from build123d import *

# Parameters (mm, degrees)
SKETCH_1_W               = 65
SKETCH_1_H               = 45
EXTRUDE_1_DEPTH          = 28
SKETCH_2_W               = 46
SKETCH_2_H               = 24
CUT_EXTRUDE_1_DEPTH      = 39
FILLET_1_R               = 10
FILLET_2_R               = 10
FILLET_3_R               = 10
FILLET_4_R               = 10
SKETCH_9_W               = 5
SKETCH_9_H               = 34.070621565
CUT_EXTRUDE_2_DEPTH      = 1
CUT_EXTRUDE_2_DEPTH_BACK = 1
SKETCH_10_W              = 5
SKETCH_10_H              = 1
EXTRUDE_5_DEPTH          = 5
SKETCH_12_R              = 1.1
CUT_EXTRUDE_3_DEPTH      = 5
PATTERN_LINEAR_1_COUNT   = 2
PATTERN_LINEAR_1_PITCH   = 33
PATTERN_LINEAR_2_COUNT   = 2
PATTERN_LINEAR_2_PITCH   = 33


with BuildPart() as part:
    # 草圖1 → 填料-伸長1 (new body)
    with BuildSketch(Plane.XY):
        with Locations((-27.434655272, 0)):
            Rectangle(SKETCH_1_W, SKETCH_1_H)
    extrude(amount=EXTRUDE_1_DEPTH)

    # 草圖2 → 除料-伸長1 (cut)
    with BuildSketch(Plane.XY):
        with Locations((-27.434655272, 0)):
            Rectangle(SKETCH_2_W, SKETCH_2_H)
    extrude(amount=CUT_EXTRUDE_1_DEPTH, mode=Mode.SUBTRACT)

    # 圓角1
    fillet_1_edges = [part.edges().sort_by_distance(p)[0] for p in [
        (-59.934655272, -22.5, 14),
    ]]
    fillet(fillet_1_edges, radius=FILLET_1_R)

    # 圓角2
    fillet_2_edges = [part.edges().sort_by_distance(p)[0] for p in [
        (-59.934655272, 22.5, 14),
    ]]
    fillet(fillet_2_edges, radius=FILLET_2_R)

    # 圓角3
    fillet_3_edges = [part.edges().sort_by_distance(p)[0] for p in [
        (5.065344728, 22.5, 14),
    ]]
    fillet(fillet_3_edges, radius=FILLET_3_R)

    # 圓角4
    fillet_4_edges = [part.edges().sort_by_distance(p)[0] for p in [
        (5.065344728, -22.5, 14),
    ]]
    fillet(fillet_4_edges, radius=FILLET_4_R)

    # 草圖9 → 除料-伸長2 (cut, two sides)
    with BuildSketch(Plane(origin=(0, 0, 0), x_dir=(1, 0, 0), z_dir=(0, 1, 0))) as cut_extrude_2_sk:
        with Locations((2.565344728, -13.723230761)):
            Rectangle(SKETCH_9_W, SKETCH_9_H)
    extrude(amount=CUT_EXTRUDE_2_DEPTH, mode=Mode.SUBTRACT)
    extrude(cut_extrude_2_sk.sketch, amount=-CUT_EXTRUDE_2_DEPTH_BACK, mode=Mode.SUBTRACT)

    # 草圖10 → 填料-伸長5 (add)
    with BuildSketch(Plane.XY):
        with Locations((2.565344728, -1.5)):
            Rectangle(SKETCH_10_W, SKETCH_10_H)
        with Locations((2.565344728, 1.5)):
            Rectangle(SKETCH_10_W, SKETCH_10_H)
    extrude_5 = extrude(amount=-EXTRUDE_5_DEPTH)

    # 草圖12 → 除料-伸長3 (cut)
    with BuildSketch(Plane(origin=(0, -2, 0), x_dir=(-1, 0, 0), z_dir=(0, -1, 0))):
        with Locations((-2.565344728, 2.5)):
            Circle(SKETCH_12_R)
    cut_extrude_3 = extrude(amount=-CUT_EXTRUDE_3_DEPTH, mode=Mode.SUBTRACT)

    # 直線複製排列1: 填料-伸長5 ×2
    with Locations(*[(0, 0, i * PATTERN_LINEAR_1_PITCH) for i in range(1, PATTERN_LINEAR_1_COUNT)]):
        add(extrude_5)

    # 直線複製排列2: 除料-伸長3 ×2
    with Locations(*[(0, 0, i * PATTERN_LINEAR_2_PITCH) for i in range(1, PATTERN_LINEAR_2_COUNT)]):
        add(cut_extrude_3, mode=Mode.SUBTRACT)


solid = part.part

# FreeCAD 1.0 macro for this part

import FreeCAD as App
import Part
import Sketcher
from FreeCAD import Vector
Q = App.Units.Quantity


def edges_at(feature, points):
    """Names of the edges that pass closest to the given points."""
    edges = feature.Shape.Edges
    near = lambda p: min(range(len(edges)), key=lambda i: edges[i].distToShape(Part.Vertex(*p))[0])
    return sorted({f"Edge{near(p) + 1}" for p in points})

doc = App.newDocument("Part")
body = doc.addObject("PartDesign::Body", "Body")

# Sketch on XY plane
sketch1 = doc.addObject("Sketcher::SketchObject", "Sketch")
body.addObject(sketch1)
sketch1.AttachmentSupport = (doc.XY_Plane, [""])
sketch1.MapMode = "FlatFace"
sketch1.addGeometry(Part.LineSegment(Vector(-59.934655, 22.5, 0), Vector(-59.934655, -22.5, 0)), False)
sketch1.addGeometry(Part.LineSegment(Vector(-59.934655, -22.5, 0), Vector(5.065345, -22.5, 0)), False)
sketch1.addGeometry(Part.LineSegment(Vector(5.065345, -22.5, 0), Vector(5.065345, 22.5, 0)), False)
sketch1.addGeometry(Part.LineSegment(Vector(5.065345, 22.5, 0), Vector(-59.934655, 22.5, 0)), False)
sketch1.addConstraint(Sketcher.Constraint("Coincident", 0, 2, 1, 1))
sketch1.addConstraint(Sketcher.Constraint("Coincident", 1, 2, 2, 1))
sketch1.addConstraint(Sketcher.Constraint("Coincident", 2, 2, 3, 1))
sketch1.addConstraint(Sketcher.Constraint("Coincident", 3, 2, 0, 1))
sketch1.addConstraint(Sketcher.Constraint("Vertical", 0))
sketch1.addConstraint(Sketcher.Constraint("Horizontal", 1))
sketch1.addConstraint(Sketcher.Constraint("Vertical", 2))
sketch1.addConstraint(Sketcher.Constraint("Horizontal", 3))
sketch1.addConstraint(Sketcher.Constraint("DistanceX", 1, 1, 1, 2, Q("65 mm")))
sketch1.addConstraint(Sketcher.Constraint("DistanceY", 0, 2, 0, 1, Q("45 mm")))
sketch1.addConstraint(Sketcher.Constraint("DistanceY", 0, 2, -1, 1, Q("22.5 mm")))
sketch1.addConstraint(Sketcher.Constraint("DistanceX", 0, 2, -1, 1, Q("59.934655 mm")))
pad1 = doc.addObject("PartDesign::Pad", "Pad")
body.addObject(pad1)
pad1.Profile = sketch1
pad1.Length = 28

# Sketch on XY plane
sketch2 = doc.addObject("Sketcher::SketchObject", "Sketch001")
body.addObject(sketch2)
sketch2.AttachmentSupport = (doc.XY_Plane, [""])
sketch2.MapMode = "FlatFace"
sketch2.addGeometry(Part.LineSegment(Vector(-50.434655, 12, 0), Vector(-50.434655, -12, 0)), False)
sketch2.addGeometry(Part.LineSegment(Vector(-50.434655, -12, 0), Vector(-4.434655, -12, 0)), False)
sketch2.addGeometry(Part.LineSegment(Vector(-4.434655, -12, 0), Vector(-4.434655, 12, 0)), False)
sketch2.addGeometry(Part.LineSegment(Vector(-4.434655, 12, 0), Vector(-50.434655, 12, 0)), False)
sketch2.addConstraint(Sketcher.Constraint("Coincident", 0, 2, 1, 1))
sketch2.addConstraint(Sketcher.Constraint("Coincident", 1, 2, 2, 1))
sketch2.addConstraint(Sketcher.Constraint("Coincident", 2, 2, 3, 1))
sketch2.addConstraint(Sketcher.Constraint("Coincident", 3, 2, 0, 1))
sketch2.addConstraint(Sketcher.Constraint("Vertical", 0))
sketch2.addConstraint(Sketcher.Constraint("Horizontal", 1))
sketch2.addConstraint(Sketcher.Constraint("Vertical", 2))
sketch2.addConstraint(Sketcher.Constraint("Horizontal", 3))
sketch2.addConstraint(Sketcher.Constraint("DistanceX", 1, 1, 1, 2, Q("46 mm")))
sketch2.addConstraint(Sketcher.Constraint("DistanceY", 0, 2, 0, 1, Q("24 mm")))
sketch2.addConstraint(Sketcher.Constraint("DistanceY", 0, 2, -1, 1, Q("12 mm")))
sketch2.addConstraint(Sketcher.Constraint("DistanceX", 0, 2, -1, 1, Q("50.434655 mm")))
pocket1 = doc.addObject("PartDesign::Pocket", "Pocket")
body.addObject(pocket1)
pocket1.Profile = sketch2
pocket1.Length = 39
pocket1.Reversed = True
doc.recompute()

fillet = doc.addObject("PartDesign::Fillet", "Fillet")
body.addObject(fillet)
fillet.Base = (pocket1, edges_at(pocket1, [(-59.935, -22.5, 14)]))
fillet.Radius = 10
doc.recompute()

fillet2 = doc.addObject("PartDesign::Fillet", "Fillet001")
body.addObject(fillet2)
fillet2.Base = (fillet, edges_at(fillet, [(-59.935, 22.5, 14)]))
fillet2.Radius = 10
doc.recompute()

fillet3 = doc.addObject("PartDesign::Fillet", "Fillet002")
body.addObject(fillet3)
fillet3.Base = (fillet2, edges_at(fillet2, [(5.065, 22.5, 14)]))
fillet3.Radius = 10
doc.recompute()

fillet4 = doc.addObject("PartDesign::Fillet", "Fillet003")
body.addObject(fillet4)
fillet4.Base = (fillet3, edges_at(fillet3, [(5.065, -22.5, 14)]))
fillet4.Radius = 10

# Sketch on XZ plane
sketch3 = doc.addObject("Sketcher::SketchObject", "Sketch002")
body.addObject(sketch3)
sketch3.AttachmentSupport = (doc.XZ_Plane, [""])
sketch3.MapMode = "FlatFace"
sketch3.addGeometry(Part.LineSegment(Vector(0.065345, -3.31208, 0), Vector(0.065345, 30.758542, 0)), False)
sketch3.addGeometry(Part.LineSegment(Vector(0.065345, 30.758542, 0), Vector(5.065345, 30.758542, 0)), False)
sketch3.addGeometry(Part.LineSegment(Vector(5.065345, 30.758542, 0), Vector(5.065345, -3.31208, 0)), False)
sketch3.addGeometry(Part.LineSegment(Vector(5.065345, -3.31208, 0), Vector(0.065345, -3.31208, 0)), False)
sketch3.addConstraint(Sketcher.Constraint("Coincident", 0, 2, 1, 1))
sketch3.addConstraint(Sketcher.Constraint("Coincident", 1, 2, 2, 1))
sketch3.addConstraint(Sketcher.Constraint("Coincident", 2, 2, 3, 1))
sketch3.addConstraint(Sketcher.Constraint("Coincident", 3, 2, 0, 1))
sketch3.addConstraint(Sketcher.Constraint("Vertical", 0))
sketch3.addConstraint(Sketcher.Constraint("Horizontal", 1))
sketch3.addConstraint(Sketcher.Constraint("Vertical", 2))
sketch3.addConstraint(Sketcher.Constraint("Horizontal", 3))
sketch3.addConstraint(Sketcher.Constraint("DistanceX", 1, 1, 1, 2, Q("5 mm")))
sketch3.addConstraint(Sketcher.Constraint("DistanceY", 0, 1, 0, 2, Q("34.070622 mm")))
sketch3.addConstraint(Sketcher.Constraint("DistanceY", -1, 1, 0, 2, Q("30.758542 mm")))
sketch3.addConstraint(Sketcher.Constraint("DistanceX", -1, 1, 0, 2, Q("0.065345 mm")))
pocket2 = doc.addObject("PartDesign::Pocket", "Pocket001")
body.addObject(pocket2)
pocket2.Profile = sketch3
pocket2.Type = "TwoLengths"
pocket2.Length = 1
pocket2.Length2 = 1

# Sketch on XY plane
sketch4 = doc.addObject("Sketcher::SketchObject", "Sketch003")
body.addObject(sketch4)
sketch4.AttachmentSupport = (doc.XY_Plane, [""])
sketch4.MapMode = "FlatFace"
sketch4.addGeometry(Part.LineSegment(Vector(0.065345, -1, 0), Vector(0.065345, -2, 0)), False)
sketch4.addGeometry(Part.LineSegment(Vector(0.065345, -2, 0), Vector(5.065345, -2, 0)), False)
sketch4.addGeometry(Part.LineSegment(Vector(5.065345, -2, 0), Vector(5.065345, -1, 0)), False)
sketch4.addGeometry(Part.LineSegment(Vector(5.065345, -1, 0), Vector(0.065345, -1, 0)), False)
sketch4.addGeometry(Part.LineSegment(Vector(0.065345, 2, 0), Vector(0.065345, 1, 0)), False)
sketch4.addGeometry(Part.LineSegment(Vector(0.065345, 1, 0), Vector(5.065345, 1, 0)), False)
sketch4.addGeometry(Part.LineSegment(Vector(5.065345, 1, 0), Vector(5.065345, 2, 0)), False)
sketch4.addGeometry(Part.LineSegment(Vector(5.065345, 2, 0), Vector(0.065345, 2, 0)), False)
sketch4.addConstraint(Sketcher.Constraint("Coincident", 0, 2, 1, 1))
sketch4.addConstraint(Sketcher.Constraint("Coincident", 1, 2, 2, 1))
sketch4.addConstraint(Sketcher.Constraint("Coincident", 2, 2, 3, 1))
sketch4.addConstraint(Sketcher.Constraint("Coincident", 3, 2, 0, 1))
sketch4.addConstraint(Sketcher.Constraint("Coincident", 4, 2, 5, 1))
sketch4.addConstraint(Sketcher.Constraint("Coincident", 5, 2, 6, 1))
sketch4.addConstraint(Sketcher.Constraint("Coincident", 6, 2, 7, 1))
sketch4.addConstraint(Sketcher.Constraint("Coincident", 7, 2, 4, 1))
sketch4.addConstraint(Sketcher.Constraint("Vertical", 0))
sketch4.addConstraint(Sketcher.Constraint("Horizontal", 1))
sketch4.addConstraint(Sketcher.Constraint("Vertical", 2))
sketch4.addConstraint(Sketcher.Constraint("Horizontal", 3))
sketch4.addConstraint(Sketcher.Constraint("Vertical", 4))
sketch4.addConstraint(Sketcher.Constraint("Horizontal", 5))
sketch4.addConstraint(Sketcher.Constraint("Vertical", 6))
sketch4.addConstraint(Sketcher.Constraint("Horizontal", 7))
sketch4.addConstraint(Sketcher.Constraint("Symmetric", 3, 2, 4, 2, -1))
sketch4.addConstraint(Sketcher.Constraint("Symmetric", 1, 2, 6, 2, -1))
sketch4.addConstraint(Sketcher.Constraint("DistanceX", 1, 1, 1, 2, Q("5 mm")))
sketch4.addConstraint(Sketcher.Constraint("DistanceY", 0, 2, 0, 1, Q("1 mm")))
sketch4.addConstraint(Sketcher.Constraint("DistanceY", 0, 2, -1, 1, Q("2 mm")))
sketch4.addConstraint(Sketcher.Constraint("DistanceX", -1, 1, 0, 2, Q("0.065345 mm")))
pad2 = doc.addObject("PartDesign::Pad", "Pad001")
body.addObject(pad2)
pad2.Profile = sketch4
pad2.Length = 5
pad2.Reversed = True

# Sketch on XZ plane
sketch5 = doc.addObject("Sketcher::SketchObject", "Sketch004")
body.addObject(sketch5)
sketch5.AttachmentSupport = (doc.XZ_Plane, [""])
sketch5.MapMode = "FlatFace"
sketch5.AttachmentOffset = App.Placement(Vector(0, 0, 2), App.Rotation())
sketch5.addGeometry(Part.Circle(Vector(2.565345, -2.5, 0), Vector(0, 0, 1), 1.1), False)
sketch5.addConstraint(Sketcher.Constraint("Diameter", 0, Q("2.2 mm")))
sketch5.addConstraint(Sketcher.Constraint("DistanceY", 0, 3, -1, 1, Q("2.5 mm")))
sketch5.addConstraint(Sketcher.Constraint("DistanceX", -1, 1, 0, 3, Q("2.565345 mm")))
pocket3 = doc.addObject("PartDesign::Pocket", "Pocket002")
body.addObject(pocket3)
pocket3.Profile = sketch5
pocket3.Length = 5
doc.recompute()

linearpattern = doc.addObject("PartDesign::LinearPattern", "LinearPattern")
body.addObject(linearpattern)
linearpattern.Originals = [pad2]
linearpattern.Direction = (doc.Z_Axis, [""])
linearpattern.Mode = "offset"
linearpattern.Offset = 33
linearpattern.Occurrences = 2
body.Tip = linearpattern
doc.recompute()

linearpattern2 = doc.addObject("PartDesign::LinearPattern", "LinearPattern001")
body.addObject(linearpattern2)
linearpattern2.Originals = [pocket3]
linearpattern2.Direction = (doc.Z_Axis, [""])
linearpattern2.Mode = "offset"
linearpattern2.Offset = 33
linearpattern2.Occurrences = 2
body.Tip = linearpattern2

doc.recompute()
